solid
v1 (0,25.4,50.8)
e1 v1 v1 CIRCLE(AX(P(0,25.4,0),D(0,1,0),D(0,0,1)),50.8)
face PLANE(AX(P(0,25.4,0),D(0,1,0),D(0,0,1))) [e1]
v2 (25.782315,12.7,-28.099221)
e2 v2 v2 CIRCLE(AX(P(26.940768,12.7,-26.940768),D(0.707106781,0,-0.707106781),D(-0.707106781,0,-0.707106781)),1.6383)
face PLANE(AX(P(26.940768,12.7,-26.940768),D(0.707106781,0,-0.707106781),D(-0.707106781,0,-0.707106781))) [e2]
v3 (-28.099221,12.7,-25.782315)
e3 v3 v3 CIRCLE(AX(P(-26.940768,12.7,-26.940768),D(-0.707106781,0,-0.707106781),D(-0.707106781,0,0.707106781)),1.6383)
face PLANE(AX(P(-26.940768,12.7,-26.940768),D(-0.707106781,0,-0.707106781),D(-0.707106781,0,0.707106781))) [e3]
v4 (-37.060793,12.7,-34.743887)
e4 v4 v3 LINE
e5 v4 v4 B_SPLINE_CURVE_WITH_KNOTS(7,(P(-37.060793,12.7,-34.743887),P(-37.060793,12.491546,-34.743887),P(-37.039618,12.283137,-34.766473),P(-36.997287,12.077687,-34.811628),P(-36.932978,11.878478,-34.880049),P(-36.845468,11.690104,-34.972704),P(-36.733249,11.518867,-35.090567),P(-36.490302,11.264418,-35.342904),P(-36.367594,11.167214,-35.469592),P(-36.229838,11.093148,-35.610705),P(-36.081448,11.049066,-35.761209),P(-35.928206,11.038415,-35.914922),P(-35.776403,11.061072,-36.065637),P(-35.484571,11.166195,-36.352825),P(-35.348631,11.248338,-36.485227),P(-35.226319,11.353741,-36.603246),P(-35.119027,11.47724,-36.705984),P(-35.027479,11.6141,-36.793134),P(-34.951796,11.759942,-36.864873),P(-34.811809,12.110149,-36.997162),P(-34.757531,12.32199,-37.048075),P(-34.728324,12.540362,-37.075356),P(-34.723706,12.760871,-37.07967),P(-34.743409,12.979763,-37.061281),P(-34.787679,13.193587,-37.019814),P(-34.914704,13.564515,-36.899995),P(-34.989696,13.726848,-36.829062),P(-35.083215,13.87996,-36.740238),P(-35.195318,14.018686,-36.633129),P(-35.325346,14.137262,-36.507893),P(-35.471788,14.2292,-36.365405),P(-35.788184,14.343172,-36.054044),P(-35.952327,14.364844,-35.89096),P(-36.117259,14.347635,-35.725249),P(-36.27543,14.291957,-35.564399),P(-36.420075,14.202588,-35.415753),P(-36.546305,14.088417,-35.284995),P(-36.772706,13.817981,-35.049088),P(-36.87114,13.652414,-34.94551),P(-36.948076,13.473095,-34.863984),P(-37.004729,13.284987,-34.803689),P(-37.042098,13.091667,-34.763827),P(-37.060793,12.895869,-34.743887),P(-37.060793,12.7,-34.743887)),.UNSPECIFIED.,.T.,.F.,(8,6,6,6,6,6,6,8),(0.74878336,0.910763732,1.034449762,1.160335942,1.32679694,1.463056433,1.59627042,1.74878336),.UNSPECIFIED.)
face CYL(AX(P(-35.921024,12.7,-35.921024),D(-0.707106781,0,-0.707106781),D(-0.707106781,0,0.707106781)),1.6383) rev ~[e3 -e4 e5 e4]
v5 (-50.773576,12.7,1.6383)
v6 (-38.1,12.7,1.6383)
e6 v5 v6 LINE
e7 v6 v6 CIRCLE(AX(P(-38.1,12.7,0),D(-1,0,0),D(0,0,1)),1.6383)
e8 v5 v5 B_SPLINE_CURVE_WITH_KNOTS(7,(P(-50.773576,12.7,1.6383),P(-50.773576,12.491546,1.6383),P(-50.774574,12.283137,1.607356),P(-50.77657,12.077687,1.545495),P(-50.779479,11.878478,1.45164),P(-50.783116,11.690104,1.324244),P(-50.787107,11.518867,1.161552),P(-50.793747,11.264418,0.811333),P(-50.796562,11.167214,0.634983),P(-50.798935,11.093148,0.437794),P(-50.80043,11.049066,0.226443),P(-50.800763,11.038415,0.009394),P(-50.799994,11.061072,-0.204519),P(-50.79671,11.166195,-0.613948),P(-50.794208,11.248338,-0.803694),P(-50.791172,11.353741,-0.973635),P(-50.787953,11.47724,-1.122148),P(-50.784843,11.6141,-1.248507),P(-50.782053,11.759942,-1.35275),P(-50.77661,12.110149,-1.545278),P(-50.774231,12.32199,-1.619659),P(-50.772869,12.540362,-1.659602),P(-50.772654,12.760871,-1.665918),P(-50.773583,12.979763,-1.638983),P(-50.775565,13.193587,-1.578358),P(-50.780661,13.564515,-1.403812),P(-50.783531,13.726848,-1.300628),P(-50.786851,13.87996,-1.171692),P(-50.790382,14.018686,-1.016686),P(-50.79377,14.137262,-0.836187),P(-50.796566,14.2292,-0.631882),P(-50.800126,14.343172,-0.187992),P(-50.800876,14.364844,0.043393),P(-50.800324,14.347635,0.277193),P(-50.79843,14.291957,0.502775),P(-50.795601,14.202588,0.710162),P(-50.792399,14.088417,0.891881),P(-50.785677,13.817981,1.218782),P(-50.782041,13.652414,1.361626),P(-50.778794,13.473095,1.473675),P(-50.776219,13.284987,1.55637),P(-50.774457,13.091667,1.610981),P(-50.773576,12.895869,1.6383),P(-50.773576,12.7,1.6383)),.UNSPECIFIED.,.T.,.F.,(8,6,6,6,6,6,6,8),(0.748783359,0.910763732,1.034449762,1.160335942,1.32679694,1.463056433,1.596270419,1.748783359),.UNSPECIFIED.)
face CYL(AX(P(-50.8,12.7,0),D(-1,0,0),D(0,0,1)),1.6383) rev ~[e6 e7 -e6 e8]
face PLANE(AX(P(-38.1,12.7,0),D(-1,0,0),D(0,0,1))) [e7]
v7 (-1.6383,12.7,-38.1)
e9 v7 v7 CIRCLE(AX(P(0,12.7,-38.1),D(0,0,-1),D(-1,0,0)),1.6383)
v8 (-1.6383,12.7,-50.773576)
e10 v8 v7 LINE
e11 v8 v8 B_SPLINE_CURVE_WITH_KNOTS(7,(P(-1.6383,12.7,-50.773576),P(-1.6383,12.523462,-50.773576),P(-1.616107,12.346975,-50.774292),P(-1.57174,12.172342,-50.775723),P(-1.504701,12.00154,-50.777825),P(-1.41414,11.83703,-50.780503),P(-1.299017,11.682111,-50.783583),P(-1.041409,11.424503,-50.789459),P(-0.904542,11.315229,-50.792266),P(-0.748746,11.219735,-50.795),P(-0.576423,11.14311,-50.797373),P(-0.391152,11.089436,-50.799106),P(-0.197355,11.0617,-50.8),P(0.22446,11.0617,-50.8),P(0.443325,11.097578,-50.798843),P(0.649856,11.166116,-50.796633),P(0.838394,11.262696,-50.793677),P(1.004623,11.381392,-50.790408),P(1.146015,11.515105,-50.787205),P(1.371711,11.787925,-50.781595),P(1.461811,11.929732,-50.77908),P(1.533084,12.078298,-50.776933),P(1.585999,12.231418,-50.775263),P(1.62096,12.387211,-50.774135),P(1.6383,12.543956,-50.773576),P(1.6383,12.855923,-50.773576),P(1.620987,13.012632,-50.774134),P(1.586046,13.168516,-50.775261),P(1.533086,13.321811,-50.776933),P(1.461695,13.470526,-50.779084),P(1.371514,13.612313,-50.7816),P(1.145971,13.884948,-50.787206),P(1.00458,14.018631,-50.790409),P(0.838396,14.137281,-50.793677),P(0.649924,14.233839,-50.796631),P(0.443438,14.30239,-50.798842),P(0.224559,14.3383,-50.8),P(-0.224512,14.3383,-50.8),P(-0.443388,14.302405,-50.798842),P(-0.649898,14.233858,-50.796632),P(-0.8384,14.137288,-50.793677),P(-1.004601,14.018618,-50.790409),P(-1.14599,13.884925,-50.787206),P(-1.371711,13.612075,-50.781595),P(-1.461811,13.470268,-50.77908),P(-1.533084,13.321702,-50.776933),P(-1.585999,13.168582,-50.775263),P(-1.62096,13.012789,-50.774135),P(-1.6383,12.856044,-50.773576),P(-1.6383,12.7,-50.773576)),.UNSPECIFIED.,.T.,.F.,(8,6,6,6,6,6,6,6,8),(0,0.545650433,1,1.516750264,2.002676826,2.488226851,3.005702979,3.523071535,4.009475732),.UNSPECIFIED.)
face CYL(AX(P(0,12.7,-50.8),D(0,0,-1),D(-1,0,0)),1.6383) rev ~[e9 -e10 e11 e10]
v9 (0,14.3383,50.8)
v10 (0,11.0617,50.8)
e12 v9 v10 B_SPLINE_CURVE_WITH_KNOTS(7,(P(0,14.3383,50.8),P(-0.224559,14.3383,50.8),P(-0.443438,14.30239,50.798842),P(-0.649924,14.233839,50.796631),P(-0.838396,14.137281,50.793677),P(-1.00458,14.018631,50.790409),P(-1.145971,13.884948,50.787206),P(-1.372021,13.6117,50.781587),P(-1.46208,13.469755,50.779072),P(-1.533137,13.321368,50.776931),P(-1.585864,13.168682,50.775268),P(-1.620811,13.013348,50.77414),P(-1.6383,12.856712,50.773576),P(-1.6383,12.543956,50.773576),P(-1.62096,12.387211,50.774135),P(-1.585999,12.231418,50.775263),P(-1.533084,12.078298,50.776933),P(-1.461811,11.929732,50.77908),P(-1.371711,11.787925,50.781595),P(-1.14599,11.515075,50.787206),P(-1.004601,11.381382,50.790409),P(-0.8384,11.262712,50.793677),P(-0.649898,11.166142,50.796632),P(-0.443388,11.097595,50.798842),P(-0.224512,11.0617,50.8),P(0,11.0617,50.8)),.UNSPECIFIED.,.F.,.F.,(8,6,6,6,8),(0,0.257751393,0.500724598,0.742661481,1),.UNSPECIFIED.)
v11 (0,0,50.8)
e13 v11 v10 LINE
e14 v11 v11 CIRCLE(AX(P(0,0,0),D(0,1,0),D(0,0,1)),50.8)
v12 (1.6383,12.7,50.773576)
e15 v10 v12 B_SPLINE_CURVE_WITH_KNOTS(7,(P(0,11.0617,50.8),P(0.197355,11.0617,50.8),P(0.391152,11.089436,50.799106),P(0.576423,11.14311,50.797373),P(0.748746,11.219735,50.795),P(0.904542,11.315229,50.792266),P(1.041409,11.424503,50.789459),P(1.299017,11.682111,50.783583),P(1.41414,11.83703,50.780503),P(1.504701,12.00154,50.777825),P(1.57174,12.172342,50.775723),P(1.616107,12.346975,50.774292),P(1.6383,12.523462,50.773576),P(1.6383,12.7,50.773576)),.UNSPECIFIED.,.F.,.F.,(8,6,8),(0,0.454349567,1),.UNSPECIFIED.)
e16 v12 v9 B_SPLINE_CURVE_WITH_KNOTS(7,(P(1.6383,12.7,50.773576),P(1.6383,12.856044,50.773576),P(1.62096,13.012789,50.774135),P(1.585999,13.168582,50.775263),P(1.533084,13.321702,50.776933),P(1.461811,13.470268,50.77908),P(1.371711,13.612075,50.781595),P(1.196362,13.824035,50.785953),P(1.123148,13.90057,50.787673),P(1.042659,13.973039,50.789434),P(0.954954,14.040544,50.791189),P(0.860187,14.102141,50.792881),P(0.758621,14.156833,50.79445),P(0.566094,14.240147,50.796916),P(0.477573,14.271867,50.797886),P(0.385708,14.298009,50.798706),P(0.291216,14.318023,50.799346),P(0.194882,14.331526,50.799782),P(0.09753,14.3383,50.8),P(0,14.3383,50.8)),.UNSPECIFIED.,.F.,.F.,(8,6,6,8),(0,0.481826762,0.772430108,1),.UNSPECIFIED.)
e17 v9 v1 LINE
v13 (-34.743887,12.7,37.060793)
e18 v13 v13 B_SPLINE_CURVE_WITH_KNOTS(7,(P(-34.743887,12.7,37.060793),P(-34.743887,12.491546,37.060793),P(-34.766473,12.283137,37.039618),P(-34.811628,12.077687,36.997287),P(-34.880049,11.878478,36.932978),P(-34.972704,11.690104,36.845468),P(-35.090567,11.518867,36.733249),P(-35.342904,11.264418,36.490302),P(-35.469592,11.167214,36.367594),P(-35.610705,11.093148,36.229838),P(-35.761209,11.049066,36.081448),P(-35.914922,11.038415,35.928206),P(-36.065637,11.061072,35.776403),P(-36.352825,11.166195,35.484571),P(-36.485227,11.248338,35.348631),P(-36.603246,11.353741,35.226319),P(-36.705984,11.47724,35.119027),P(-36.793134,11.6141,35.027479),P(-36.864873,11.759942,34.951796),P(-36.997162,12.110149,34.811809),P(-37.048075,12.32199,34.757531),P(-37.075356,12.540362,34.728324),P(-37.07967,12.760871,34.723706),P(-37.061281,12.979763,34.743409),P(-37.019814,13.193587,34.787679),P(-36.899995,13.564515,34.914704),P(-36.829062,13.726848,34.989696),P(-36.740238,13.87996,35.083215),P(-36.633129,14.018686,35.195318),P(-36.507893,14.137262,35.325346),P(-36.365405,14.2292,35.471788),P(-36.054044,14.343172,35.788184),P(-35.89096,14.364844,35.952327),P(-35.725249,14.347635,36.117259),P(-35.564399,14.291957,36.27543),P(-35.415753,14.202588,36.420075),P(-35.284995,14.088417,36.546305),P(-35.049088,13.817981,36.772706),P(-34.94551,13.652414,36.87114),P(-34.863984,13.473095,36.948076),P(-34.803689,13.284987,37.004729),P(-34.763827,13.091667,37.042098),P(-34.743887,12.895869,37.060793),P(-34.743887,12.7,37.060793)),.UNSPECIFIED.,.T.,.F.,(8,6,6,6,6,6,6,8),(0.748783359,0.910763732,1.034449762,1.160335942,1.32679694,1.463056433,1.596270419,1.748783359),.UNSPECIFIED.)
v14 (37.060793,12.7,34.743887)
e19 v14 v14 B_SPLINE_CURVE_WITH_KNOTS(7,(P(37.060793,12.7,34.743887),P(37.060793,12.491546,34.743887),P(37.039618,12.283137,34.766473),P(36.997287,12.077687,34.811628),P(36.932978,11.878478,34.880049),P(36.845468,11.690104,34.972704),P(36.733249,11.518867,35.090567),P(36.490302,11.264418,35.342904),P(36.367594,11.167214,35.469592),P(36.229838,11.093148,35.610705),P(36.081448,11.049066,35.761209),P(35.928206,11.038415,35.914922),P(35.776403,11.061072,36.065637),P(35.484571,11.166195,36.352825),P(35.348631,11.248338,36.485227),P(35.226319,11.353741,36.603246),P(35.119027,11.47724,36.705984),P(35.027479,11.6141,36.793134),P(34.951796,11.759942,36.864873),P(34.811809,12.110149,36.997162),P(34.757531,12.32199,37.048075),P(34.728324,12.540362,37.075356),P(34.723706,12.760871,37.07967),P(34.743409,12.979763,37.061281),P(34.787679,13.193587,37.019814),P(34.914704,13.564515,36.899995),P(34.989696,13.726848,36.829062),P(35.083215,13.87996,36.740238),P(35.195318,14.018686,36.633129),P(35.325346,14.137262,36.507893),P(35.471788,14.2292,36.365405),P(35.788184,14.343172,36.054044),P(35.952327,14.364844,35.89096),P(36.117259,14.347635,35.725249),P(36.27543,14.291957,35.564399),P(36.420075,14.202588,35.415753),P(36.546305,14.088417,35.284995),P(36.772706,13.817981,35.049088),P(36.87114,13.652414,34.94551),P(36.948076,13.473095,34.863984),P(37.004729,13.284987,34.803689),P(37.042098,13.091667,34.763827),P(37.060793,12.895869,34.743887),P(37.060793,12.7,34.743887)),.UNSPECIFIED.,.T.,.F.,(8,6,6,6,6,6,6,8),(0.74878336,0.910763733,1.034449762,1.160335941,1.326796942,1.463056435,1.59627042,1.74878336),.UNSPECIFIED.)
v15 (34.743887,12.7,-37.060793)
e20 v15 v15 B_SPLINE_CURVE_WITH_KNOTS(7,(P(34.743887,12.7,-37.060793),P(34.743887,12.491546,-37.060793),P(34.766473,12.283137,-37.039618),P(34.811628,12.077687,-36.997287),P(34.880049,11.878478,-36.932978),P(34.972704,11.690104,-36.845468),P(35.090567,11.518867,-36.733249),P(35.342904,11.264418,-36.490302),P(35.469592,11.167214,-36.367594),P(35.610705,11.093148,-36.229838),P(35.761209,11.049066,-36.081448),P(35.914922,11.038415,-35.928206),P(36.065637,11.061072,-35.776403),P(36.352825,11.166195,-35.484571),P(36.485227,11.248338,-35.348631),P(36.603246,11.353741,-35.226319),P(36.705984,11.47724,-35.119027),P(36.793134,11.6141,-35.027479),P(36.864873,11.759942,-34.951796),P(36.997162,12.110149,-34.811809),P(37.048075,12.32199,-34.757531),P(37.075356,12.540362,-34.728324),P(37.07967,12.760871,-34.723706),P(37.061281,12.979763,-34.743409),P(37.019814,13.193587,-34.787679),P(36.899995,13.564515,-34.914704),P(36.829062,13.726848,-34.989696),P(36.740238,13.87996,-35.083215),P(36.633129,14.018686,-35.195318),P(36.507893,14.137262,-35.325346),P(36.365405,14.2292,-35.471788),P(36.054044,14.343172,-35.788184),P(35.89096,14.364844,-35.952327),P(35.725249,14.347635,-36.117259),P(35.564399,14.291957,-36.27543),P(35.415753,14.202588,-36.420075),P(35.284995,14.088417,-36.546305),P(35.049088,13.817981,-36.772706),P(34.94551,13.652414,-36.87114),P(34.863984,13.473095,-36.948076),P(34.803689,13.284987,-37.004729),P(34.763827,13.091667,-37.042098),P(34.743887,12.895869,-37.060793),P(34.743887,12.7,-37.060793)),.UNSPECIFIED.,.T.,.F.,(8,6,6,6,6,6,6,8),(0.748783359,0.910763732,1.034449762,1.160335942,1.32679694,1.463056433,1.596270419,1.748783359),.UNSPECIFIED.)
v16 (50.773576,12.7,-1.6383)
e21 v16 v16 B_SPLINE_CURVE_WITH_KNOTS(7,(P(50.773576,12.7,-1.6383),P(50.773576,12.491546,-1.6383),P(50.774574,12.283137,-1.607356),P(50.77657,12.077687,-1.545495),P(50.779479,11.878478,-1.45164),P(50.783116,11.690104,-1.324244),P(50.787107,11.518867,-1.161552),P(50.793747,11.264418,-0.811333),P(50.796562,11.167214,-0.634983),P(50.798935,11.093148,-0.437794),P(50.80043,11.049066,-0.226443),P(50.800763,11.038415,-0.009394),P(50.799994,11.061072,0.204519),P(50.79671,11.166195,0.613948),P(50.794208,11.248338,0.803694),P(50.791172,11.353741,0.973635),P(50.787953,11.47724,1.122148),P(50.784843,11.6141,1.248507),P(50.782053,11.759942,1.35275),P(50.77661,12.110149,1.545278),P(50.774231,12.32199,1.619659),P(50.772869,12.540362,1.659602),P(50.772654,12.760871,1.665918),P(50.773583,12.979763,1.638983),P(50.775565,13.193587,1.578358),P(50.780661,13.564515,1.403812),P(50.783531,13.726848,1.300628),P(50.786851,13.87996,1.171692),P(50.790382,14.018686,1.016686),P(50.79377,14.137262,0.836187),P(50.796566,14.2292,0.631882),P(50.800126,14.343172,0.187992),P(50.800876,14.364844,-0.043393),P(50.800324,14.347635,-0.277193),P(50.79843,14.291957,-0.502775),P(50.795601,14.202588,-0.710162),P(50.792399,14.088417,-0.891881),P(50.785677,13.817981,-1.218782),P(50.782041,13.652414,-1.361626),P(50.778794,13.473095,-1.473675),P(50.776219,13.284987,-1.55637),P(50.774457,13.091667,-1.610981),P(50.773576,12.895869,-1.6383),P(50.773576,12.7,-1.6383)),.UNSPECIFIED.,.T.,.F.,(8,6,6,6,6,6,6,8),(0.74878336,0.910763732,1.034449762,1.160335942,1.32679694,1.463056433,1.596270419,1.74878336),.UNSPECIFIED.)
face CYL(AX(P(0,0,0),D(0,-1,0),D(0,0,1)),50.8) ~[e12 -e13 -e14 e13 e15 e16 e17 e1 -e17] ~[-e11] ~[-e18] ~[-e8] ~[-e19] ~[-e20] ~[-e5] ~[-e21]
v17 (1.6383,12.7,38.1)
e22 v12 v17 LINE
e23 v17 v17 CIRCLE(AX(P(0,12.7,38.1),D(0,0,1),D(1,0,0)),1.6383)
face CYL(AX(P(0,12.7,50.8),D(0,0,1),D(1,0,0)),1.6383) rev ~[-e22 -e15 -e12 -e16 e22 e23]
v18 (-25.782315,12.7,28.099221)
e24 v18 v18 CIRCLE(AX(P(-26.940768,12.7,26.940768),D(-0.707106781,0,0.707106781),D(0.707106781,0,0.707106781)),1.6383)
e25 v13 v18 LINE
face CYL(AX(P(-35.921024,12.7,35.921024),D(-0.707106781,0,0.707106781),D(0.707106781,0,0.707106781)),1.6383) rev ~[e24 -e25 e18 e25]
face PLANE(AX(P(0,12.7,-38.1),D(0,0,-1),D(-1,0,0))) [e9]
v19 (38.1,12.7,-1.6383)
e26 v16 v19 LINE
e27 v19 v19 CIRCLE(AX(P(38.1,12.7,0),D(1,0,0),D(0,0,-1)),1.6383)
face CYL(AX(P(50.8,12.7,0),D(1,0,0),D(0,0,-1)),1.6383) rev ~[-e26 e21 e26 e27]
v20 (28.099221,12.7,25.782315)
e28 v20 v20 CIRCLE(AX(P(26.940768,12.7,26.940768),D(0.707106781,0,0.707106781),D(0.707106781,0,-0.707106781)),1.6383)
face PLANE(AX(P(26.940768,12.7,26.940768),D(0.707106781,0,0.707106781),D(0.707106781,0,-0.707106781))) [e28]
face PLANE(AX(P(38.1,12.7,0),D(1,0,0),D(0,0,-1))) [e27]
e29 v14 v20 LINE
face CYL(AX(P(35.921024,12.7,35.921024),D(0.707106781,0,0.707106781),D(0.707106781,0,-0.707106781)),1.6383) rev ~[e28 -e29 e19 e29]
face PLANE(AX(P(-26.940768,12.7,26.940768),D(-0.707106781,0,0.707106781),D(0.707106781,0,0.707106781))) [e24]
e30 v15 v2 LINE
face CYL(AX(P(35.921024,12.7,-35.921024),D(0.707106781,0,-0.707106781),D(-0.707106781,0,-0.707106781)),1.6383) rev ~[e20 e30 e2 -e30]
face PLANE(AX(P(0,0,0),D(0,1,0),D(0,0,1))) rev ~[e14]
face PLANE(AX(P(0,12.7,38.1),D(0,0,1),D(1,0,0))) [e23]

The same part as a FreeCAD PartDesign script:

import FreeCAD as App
import Part
import Sketcher
from FreeCAD import Vector
Q = App.Units.Quantity

doc = App.newDocument("Part")
params = doc.addObject("Spreadsheet::Sheet", "Params")
for row, (alias, value) in enumerate([
    ("sketch1_diameter", "4 in"),
    ("pad1_length", "1 in"),
    ("sketch2_diameter", "0.129 in"),
    ("pocket1_length", "0.5 in"),
], start=1):
    params.set(f"A{row}", alias)
    params.set(f"B{row}", "=" + value)
    params.setAlias(f"B{row}", alias)

body = doc.addObject("PartDesign::Body", "Body")

sketch1 = body.newObject("Sketcher::SketchObject", "Sketch")
sketch1.AttachmentSupport = (doc.getObject("XZ_Plane"), [""])
sketch1.MapMode = "FlatFace"
sketch1.addGeometry(Part.Circle(Vector(0, 0, 0), Vector(0, 0, 1), 50.8), False)
sketch1.addConstraint([
    Sketcher.Constraint("Coincident", 0, 3, -1, 1),
    Sketcher.Constraint("Diameter", 0, Q("4 in")),
])
sketch1.setExpression("Constraints[1]", "Params.sketch1_diameter")
pad1 = body.newObject("PartDesign::Pad", "Pad")
pad1.Profile = sketch1
pad1.setExpression("Length", "Params.pad1_length")
pad1.Reversed = True

sketch2 = body.newObject("Sketcher::SketchObject", "Sketch001")
sketch2.AttachmentSupport = (doc.getObject("XY_Plane"), [""])
sketch2.MapMode = "FlatFace"
sketch2.AttachmentOffset = App.Placement(Vector(0, 0, 2 * 25.4), App.Rotation())
sketch2.addGeometry(Part.Circle(Vector(0, 12.7, 0), Vector(0, 0, 1), 1.6383), False)
sketch2.addConstraint([
    Sketcher.Constraint("PointOnObject", 0, 3, -2),
    Sketcher.Constraint("Diameter", 0, Q("0.129 in")),
    Sketcher.Constraint("DistanceY", -1, 1, 0, 3, Q("0.5 in")),
])
sketch2.setExpression("Constraints[1]", "Params.sketch2_diameter")
pocket1 = body.newObject("PartDesign::Pocket", "Pocket")
pocket1.Profile = sketch2
pocket1.setExpression("Length", "Params.pocket1_length")
doc.recompute()

polarpattern = body.newObject("PartDesign::PolarPattern", "PolarPattern")
polarpattern.Originals = [pocket1]
polarpattern.Axis = (doc.getObject("Y_Axis"), [""])
polarpattern.Angle = 360
polarpattern.Occurrences = 8
body.Tip = polarpattern

doc.recompute()
